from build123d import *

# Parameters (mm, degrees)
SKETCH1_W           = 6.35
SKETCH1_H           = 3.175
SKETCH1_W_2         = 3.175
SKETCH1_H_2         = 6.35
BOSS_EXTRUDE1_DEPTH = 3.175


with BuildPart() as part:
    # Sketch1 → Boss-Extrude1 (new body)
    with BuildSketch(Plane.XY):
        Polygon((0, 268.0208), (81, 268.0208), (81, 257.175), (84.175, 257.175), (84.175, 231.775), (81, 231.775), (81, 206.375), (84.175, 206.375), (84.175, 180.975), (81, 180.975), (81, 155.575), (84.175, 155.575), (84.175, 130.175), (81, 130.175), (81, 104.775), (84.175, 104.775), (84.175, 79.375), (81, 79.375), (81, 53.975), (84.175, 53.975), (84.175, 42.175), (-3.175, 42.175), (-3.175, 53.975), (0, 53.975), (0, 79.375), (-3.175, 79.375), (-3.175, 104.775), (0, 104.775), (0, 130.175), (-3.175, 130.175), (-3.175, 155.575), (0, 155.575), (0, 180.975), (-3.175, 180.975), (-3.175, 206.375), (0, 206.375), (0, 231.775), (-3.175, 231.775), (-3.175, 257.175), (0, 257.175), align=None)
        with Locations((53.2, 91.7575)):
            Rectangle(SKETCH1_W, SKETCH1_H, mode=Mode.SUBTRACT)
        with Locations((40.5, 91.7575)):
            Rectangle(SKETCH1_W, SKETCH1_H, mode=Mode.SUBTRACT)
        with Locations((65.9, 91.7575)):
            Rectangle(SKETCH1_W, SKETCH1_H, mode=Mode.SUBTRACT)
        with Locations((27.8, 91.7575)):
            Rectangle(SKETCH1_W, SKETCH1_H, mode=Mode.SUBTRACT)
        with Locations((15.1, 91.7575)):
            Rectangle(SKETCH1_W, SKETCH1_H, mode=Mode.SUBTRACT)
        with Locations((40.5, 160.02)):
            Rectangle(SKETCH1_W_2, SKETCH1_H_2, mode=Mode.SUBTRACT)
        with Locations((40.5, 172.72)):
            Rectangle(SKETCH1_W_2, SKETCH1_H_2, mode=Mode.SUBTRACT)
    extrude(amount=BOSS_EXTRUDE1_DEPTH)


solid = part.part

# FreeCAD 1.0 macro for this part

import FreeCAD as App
import Part
import Sketcher

V = App.Vector
Q = App.Units.Quantity

doc = App.newDocument("Part")
body = doc.addObject("PartDesign::Body", "Body")

# Sketch on XY plane
sketch1 = body.newObject("Sketcher::SketchObject", "Sketch")
sketch1.AttachmentSupport = (doc.getObject("XY_Plane"), [""])
sketch1.MapMode = "FlatFace"
sketch1.addGeometry(Part.LineSegment(V(81, 268, 0), V(0, 268, 0)), False)
sketch1.addGeometry(Part.LineSegment(V(0, 268, 0), V(0, 257.2, 0)), False)
sketch1.addGeometry(Part.LineSegment(V(0, 257.2, 0), V(-3.2, 257.2, 0)), False)
sketch1.addGeometry(Part.LineSegment(V(-3.2, 257.2, 0), V(-3.2, 231.8, 0)), False)
sketch1.addGeometry(Part.LineSegment(V(-3.2, 231.8, 0), V(0, 231.8, 0)), False)
sketch1.addGeometry(Part.LineSegment(V(0, 231.8, 0), V(0, 206.4, 0)), False)
sketch1.addGeometry(Part.LineSegment(V(0, 206.4, 0), V(-3.2, 206.4, 0)), False)
sketch1.addGeometry(Part.LineSegment(V(-3.2, 206.4, 0), V(-3.2, 181, 0)), False)
sketch1.addGeometry(Part.LineSegment(V(-3.2, 181, 0), V(0, 181, 0)), False)
sketch1.addGeometry(Part.LineSegment(V(0, 181, 0), V(0, 155.6, 0)), False)
sketch1.addGeometry(Part.LineSegment(V(0, 155.6, 0), V(-3.2, 155.6, 0)), False)
sketch1.addGeometry(Part.LineSegment(V(-3.2, 155.6, 0), V(-3.2, 130.2, 0)), False)
sketch1.addGeometry(Part.LineSegment(V(-3.2, 130.2, 0), V(0, 130.2, 0)), False)
sketch1.addGeometry(Part.LineSegment(V(0, 130.2, 0), V(0, 104.8, 0)), False)
sketch1.addGeometry(Part.LineSegment(V(0, 104.8, 0), V(-3.2, 104.8, 0)), False)
sketch1.addGeometry(Part.LineSegment(V(-3.2, 104.8, 0), V(-3.2, 79.4, 0)), False)
sketch1.addGeometry(Part.LineSegment(V(-3.2, 79.4, 0), V(0, 79.4, 0)), False)
sketch1.addGeometry(Part.LineSegment(V(0, 79.4, 0), V(0, 54, 0)), False)
sketch1.addGeometry(Part.LineSegment(V(0, 54, 0), V(-3.2, 54, 0)), False)
sketch1.addGeometry(Part.LineSegment(V(-3.2, 54, 0), V(-3.2, 42.2, 0)), False)
sketch1.addGeometry(Part.LineSegment(V(-3.2, 42.2, 0), V(84.2, 42.2, 0)), False)
sketch1.addGeometry(Part.LineSegment(V(84.2, 42.2, 0), V(84.2, 54, 0)), False)
sketch1.addGeometry(Part.LineSegment(V(84.2, 54, 0), V(81, 54, 0)), False)
sketch1.addGeometry(Part.LineSegment(V(81, 54, 0), V(81, 79.4, 0)), False)
sketch1.addGeometry(Part.LineSegment(V(81, 79.4, 0), V(84.2, 79.4, 0)), False)
sketch1.addGeometry(Part.LineSegment(V(84.2, 79.4, 0), V(84.2, 104.8, 0)), False)
sketch1.addGeometry(Part.LineSegment(V(84.2, 104.8, 0), V(81, 104.8, 0)), False)
sketch1.addGeometry(Part.LineSegment(V(81, 104.8, 0), V(81, 130.2, 0)), False)
sketch1.addGeometry(Part.LineSegment(V(81, 130.2, 0), V(84.2, 130.2, 0)), False)
sketch1.addGeometry(Part.LineSegment(V(84.2, 130.2, 0), V(84.2, 155.6, 0)), False)
sketch1.addGeometry(Part.LineSegment(V(84.2, 155.6, 0), V(81, 155.6, 0)), False)
sketch1.addGeometry(Part.LineSegment(V(81, 155.6, 0), V(81, 181, 0)), False)
sketch1.addGeometry(Part.LineSegment(V(81, 181, 0), V(84.2, 181, 0)), False)
sketch1.addGeometry(Part.LineSegment(V(84.2, 181, 0), V(84.2, 206.4, 0)), False)
sketch1.addGeometry(Part.LineSegment(V(84.2, 206.4, 0), V(81, 206.4, 0)), False)
sketch1.addGeometry(Part.LineSegment(V(81, 206.4, 0), V(81, 231.8, 0)), False)
sketch1.addGeometry(Part.LineSegment(V(81, 231.8, 0), V(84.2, 231.8, 0)), False)
sketch1.addGeometry(Part.LineSegment(V(84.2, 231.8, 0), V(84.2, 257.2, 0)), False)
sketch1.addGeometry(Part.LineSegment(V(84.2, 257.2, 0), V(81, 257.2, 0)), False)
sketch1.addGeometry(Part.LineSegment(V(81, 257.2, 0), V(81, 268, 0)), False)
sketch1.addGeometry(Part.LineSegment(V(62.7, 90.2, 0), V(62.7, 93.3, 0)), False)
sketch1.addGeometry(Part.LineSegment(V(62.7, 93.3, 0), V(69.1, 93.3, 0)), False)
sketch1.addGeometry(Part.LineSegment(V(69.1, 93.3, 0), V(69.1, 90.2, 0)), False)
sketch1.addGeometry(Part.LineSegment(V(69.1, 90.2, 0), V(62.7, 90.2, 0)), False)
sketch1.addGeometry(Part.LineSegment(V(50, 90.2, 0), V(50, 93.3, 0)), False)
sketch1.addGeometry(Part.LineSegment(V(50, 93.3, 0), V(56.4, 93.3, 0)), False)
sketch1.addGeometry(Part.LineSegment(V(56.4, 93.3, 0), V(56.4, 90.2, 0)), False)
sketch1.addGeometry(Part.LineSegment(V(56.4, 90.2, 0), V(50, 90.2, 0)), False)
sketch1.addGeometry(Part.LineSegment(V(37.3, 90.2, 0), V(37.3, 93.3, 0)), False)
sketch1.addGeometry(Part.LineSegment(V(37.3, 93.3, 0), V(43.7, 93.3, 0)), False)
sketch1.addGeometry(Part.LineSegment(V(43.7, 93.3, 0), V(43.7, 90.2, 0)), False)
sketch1.addGeometry(Part.LineSegment(V(43.7, 90.2, 0), V(37.3, 90.2, 0)), False)
sketch1.addGeometry(Part.LineSegment(V(24.6, 90.2, 0), V(24.6, 93.3, 0)), False)
sketch1.addGeometry(Part.LineSegment(V(24.6, 93.3, 0), V(31, 93.3, 0)), False)
sketch1.addGeometry(Part.LineSegment(V(31, 93.3, 0), V(31, 90.2, 0)), False)
sketch1.addGeometry(Part.LineSegment(V(31, 90.2, 0), V(24.6, 90.2, 0)), False)
sketch1.addGeometry(Part.LineSegment(V(11.9, 90.2, 0), V(11.9, 93.3, 0)), False)
sketch1.addGeometry(Part.LineSegment(V(11.9, 93.3, 0), V(18.3, 93.3, 0)), False)
sketch1.addGeometry(Part.LineSegment(V(18.3, 93.3, 0), V(18.3, 90.2, 0)), False)
sketch1.addGeometry(Part.LineSegment(V(18.3, 90.2, 0), V(11.9, 90.2, 0)), False)
sketch1.addGeometry(Part.LineSegment(V(38.9, 156.8, 0), V(38.9, 163.2, 0)), False)
sketch1.addGeometry(Part.LineSegment(V(38.9, 163.2, 0), V(42.1, 163.2, 0)), False)
sketch1.addGeometry(Part.LineSegment(V(42.1, 163.2, 0), V(42.1, 156.8, 0)), False)
sketch1.addGeometry(Part.LineSegment(V(42.1, 156.8, 0), V(38.9, 156.8, 0)), False)
sketch1.addGeometry(Part.LineSegment(V(38.9, 169.5, 0), V(38.9, 175.9, 0)), False)
sketch1.addGeometry(Part.LineSegment(V(38.9, 175.9, 0), V(42.1, 175.9, 0)), False)
sketch1.addGeometry(Part.LineSegment(V(42.1, 175.9, 0), V(42.1, 169.5, 0)), False)
sketch1.addGeometry(Part.LineSegment(V(42.1, 169.5, 0), V(38.9, 169.5, 0)), False)
sketch1.addConstraint(Sketcher.Constraint("Coincident", 0, 2, 1, 1))
sketch1.addConstraint(Sketcher.Constraint("Coincident", 1, 2, 2, 1))
sketch1.addConstraint(Sketcher.Constraint("Coincident", 2, 2, 3, 1))
sketch1.addConstraint(Sketcher.Constraint("Coincident", 3, 2, 4, 1))
sketch1.addConstraint(Sketcher.Constraint("Coincident", 4, 2, 5, 1))
sketch1.addConstraint(Sketcher.Constraint("Coincident", 5, 2, 6, 1))
sketch1.addConstraint(Sketcher.Constraint("Coincident", 6, 2, 7, 1))
sketch1.addConstraint(Sketcher.Constraint("Coincident", 7, 2, 8, 1))
sketch1.addConstraint(Sketcher.Constraint("Coincident", 8, 2, 9, 1))
sketch1.addConstraint(Sketcher.Constraint("Coincident", 9, 2, 10, 1))
sketch1.addConstraint(Sketcher.Constraint("Coincident", 10, 2, 11, 1))
sketch1.addConstraint(Sketcher.Constraint("Coincident", 11, 2, 12, 1))
sketch1.addConstraint(Sketcher.Constraint("Coincident", 12, 2, 13, 1))
sketch1.addConstraint(Sketcher.Constraint("Coincident", 13, 2, 14, 1))
sketch1.addConstraint(Sketcher.Constraint("Coincident", 14, 2, 15, 1))
sketch1.addConstraint(Sketcher.Constraint("Coincident", 15, 2, 16, 1))
sketch1.addConstraint(Sketcher.Constraint("Coincident", 16, 2, 17, 1))
sketch1.addConstraint(Sketcher.Constraint("Coincident", 17, 2, 18, 1))
sketch1.addConstraint(Sketcher.Constraint("Coincident", 18, 2, 19, 1))
sketch1.addConstraint(Sketcher.Constraint("Coincident", 19, 2, 20, 1))
sketch1.addConstraint(Sketcher.Constraint("Coincident", 20, 2, 21, 1))
sketch1.addConstraint(Sketcher.Constraint("Coincident", 21, 2, 22, 1))
sketch1.addConstraint(Sketcher.Constraint("Coincident", 22, 2, 23, 1))
sketch1.addConstraint(Sketcher.Constraint("Coincident", 23, 2, 24, 1))
sketch1.addConstraint(Sketcher.Constraint("Coincident", 24, 2, 25, 1))
sketch1.addConstraint(Sketcher.Constraint("Coincident", 25, 2, 26, 1))
sketch1.addConstraint(Sketcher.Constraint("Coincident", 26, 2, 27, 1))
sketch1.addConstraint(Sketcher.Constraint("Coincident", 27, 2, 28, 1))
sketch1.addConstraint(Sketcher.Constraint("Coincident", 28, 2, 29, 1))
sketch1.addConstraint(Sketcher.Constraint("Coincident", 29, 2, 30, 1))
sketch1.addConstraint(Sketcher.Constraint("Coincident", 30, 2, 31, 1))
sketch1.addConstraint(Sketcher.Constraint("Coincident", 31, 2, 32, 1))
sketch1.addConstraint(Sketcher.Constraint("Coincident", 32, 2, 33, 1))
sketch1.addConstraint(Sketcher.Constraint("Coincident", 33, 2, 34, 1))
sketch1.addConstraint(Sketcher.Constraint("Coincident", 34, 2, 35, 1))
sketch1.addConstraint(Sketcher.Constraint("Coincident", 35, 2, 36, 1))
sketch1.addConstraint(Sketcher.Constraint("Coincident", 36, 2, 37, 1))
sketch1.addConstraint(Sketcher.Constraint("Coincident", 37, 2, 38, 1))
sketch1.addConstraint(Sketcher.Constraint("Coincident", 38, 2, 39, 1))
sketch1.addConstraint(Sketcher.Constraint("Coincident", 39, 2, 0, 1))
sketch1.addConstraint(Sketcher.Constraint("Coincident", 40, 2, 41, 1))
sketch1.addConstraint(Sketcher.Constraint("Coincident", 41, 2, 42, 1))
sketch1.addConstraint(Sketcher.Constraint("Coincident", 42, 2, 43, 1))
sketch1.addConstraint(Sketcher.Constraint("Coincident", 43, 2, 40, 1))
sketch1.addConstraint(Sketcher.Constraint("Coincident", 44, 2, 45, 1))
sketch1.addConstraint(Sketcher.Constraint("Coincident", 45, 2, 46, 1))
sketch1.addConstraint(Sketcher.Constraint("Coincident", 46, 2, 47, 1))
sketch1.addConstraint(Sketcher.Constraint("Coincident", 47, 2, 44, 1))
sketch1.addConstraint(Sketcher.Constraint("Coincident", 48, 2, 49, 1))
sketch1.addConstraint(Sketcher.Constraint("Coincident", 49, 2, 50, 1))
sketch1.addConstraint(Sketcher.Constraint("Coincident", 50, 2, 51, 1))
sketch1.addConstraint(Sketcher.Constraint("Coincident", 51, 2, 48, 1))
sketch1.addConstraint(Sketcher.Constraint("Coincident", 52, 2, 53, 1))
sketch1.addConstraint(Sketcher.Constraint("Coincident", 53, 2, 54, 1))
sketch1.addConstraint(Sketcher.Constraint("Coincident", 54, 2, 55, 1))
sketch1.addConstraint(Sketcher.Constraint("Coincident", 55, 2, 52, 1))
sketch1.addConstraint(Sketcher.Constraint("Coincident", 56, 2, 57, 1))
sketch1.addConstraint(Sketcher.Constraint("Coincident", 57, 2, 58, 1))
sketch1.addConstraint(Sketcher.Constraint("Coincident", 58, 2, 59, 1))
sketch1.addConstraint(Sketcher.Constraint("Coincident", 59, 2, 56, 1))
sketch1.addConstraint(Sketcher.Constraint("Coincident", 60, 2, 61, 1))
sketch1.addConstraint(Sketcher.Constraint("Coincident", 61, 2, 62, 1))
sketch1.addConstraint(Sketcher.Constraint("Coincident", 62, 2, 63, 1))
sketch1.addConstraint(Sketcher.Constraint("Coincident", 63, 2, 60, 1))
sketch1.addConstraint(Sketcher.Constraint("Coincident", 64, 2, 65, 1))
sketch1.addConstraint(Sketcher.Constraint("Coincident", 65, 2, 66, 1))
sketch1.addConstraint(Sketcher.Constraint("Coincident", 66, 2, 67, 1))
sketch1.addConstraint(Sketcher.Constraint("Coincident", 67, 2, 64, 1))
sketch1.addConstraint(Sketcher.Constraint("Horizontal", 0))
sketch1.addConstraint(Sketcher.Constraint("Vertical", 1))
sketch1.addConstraint(Sketcher.Constraint("Horizontal", 2))
sketch1.addConstraint(Sketcher.Constraint("Vertical", 3))
sketch1.addConstraint(Sketcher.Constraint("Horizontal", 4))
sketch1.addConstraint(Sketcher.Constraint("Vertical", 5))
sketch1.addConstraint(Sketcher.Constraint("Horizontal", 6))
sketch1.addConstraint(Sketcher.Constraint("Vertical", 7))
sketch1.addConstraint(Sketcher.Constraint("Horizontal", 8))
sketch1.addConstraint(Sketcher.Constraint("Vertical", 9))
sketch1.addConstraint(Sketcher.Constraint("Horizontal", 10))
sketch1.addConstraint(Sketcher.Constraint("Vertical", 11))
sketch1.addConstraint(Sketcher.Constraint("Horizontal", 12))
sketch1.addConstraint(Sketcher.Constraint("Vertical", 13))
sketch1.addConstraint(Sketcher.Constraint("Horizontal", 14))
sketch1.addConstraint(Sketcher.Constraint("Vertical", 15))
sketch1.addConstraint(Sketcher.Constraint("Horizontal", 16))
sketch1.addConstraint(Sketcher.Constraint("Vertical", 17))
sketch1.addConstraint(Sketcher.Constraint("Horizontal", 18))
sketch1.addConstraint(Sketcher.Constraint("Vertical", 19))
sketch1.addConstraint(Sketcher.Constraint("Horizontal", 20))
sketch1.addConstraint(Sketcher.Constraint("Vertical", 21))
sketch1.addConstraint(Sketcher.Constraint("Horizontal", 22))
sketch1.addConstraint(Sketcher.Constraint("Vertical", 23))
sketch1.addConstraint(Sketcher.Constraint("Horizontal", 24))
sketch1.addConstraint(Sketcher.Constraint("Vertical", 25))
sketch1.addConstraint(Sketcher.Constraint("Horizontal", 26))
sketch1.addConstraint(Sketcher.Constraint("Vertical", 27))
sketch1.addConstraint(Sketcher.Constraint("Horizontal", 28))
sketch1.addConstraint(Sketcher.Constraint("Vertical", 29))
sketch1.addConstraint(Sketcher.Constraint("Horizontal", 30))
sketch1.addConstraint(Sketcher.Constraint("Vertical", 31))
sketch1.addConstraint(Sketcher.Constraint("Horizontal", 32))
sketch1.addConstraint(Sketcher.Constraint("Vertical", 33))
sketch1.addConstraint(Sketcher.Constraint("Horizontal", 34))
sketch1.addConstraint(Sketcher.Constraint("Vertical", 35))
sketch1.addConstraint(Sketcher.Constraint("Horizontal", 36))
sketch1.addConstraint(Sketcher.Constraint("Vertical", 37))
sketch1.addConstraint(Sketcher.Constraint("Horizontal", 38))
sketch1.addConstraint(Sketcher.Constraint("Vertical", 39))
sketch1.addConstraint(Sketcher.Constraint("Vertical", 40))
sketch1.addConstraint(Sketcher.Constraint("Horizontal", 41))
sketch1.addConstraint(Sketcher.Constraint("Vertical", 42))
sketch1.addConstraint(Sketcher.Constraint("Horizontal", 43))
sketch1.addConstraint(Sketcher.Constraint("Vertical", 44))
sketch1.addConstraint(Sketcher.Constraint("Horizontal", 45))
sketch1.addConstraint(Sketcher.Constraint("Vertical", 46))
sketch1.addConstraint(Sketcher.Constraint("Horizontal", 47))
sketch1.addConstraint(Sketcher.Constraint("Vertical", 48))
sketch1.addConstraint(Sketcher.Constraint("Horizontal", 49))
sketch1.addConstraint(Sketcher.Constraint("Vertical", 50))
sketch1.addConstraint(Sketcher.Constraint("Horizontal", 51))
sketch1.addConstraint(Sketcher.Constraint("Vertical", 52))
sketch1.addConstraint(Sketcher.Constraint("Horizontal", 53))
sketch1.addConstraint(Sketcher.Constraint("Vertical", 54))
sketch1.addConstraint(Sketcher.Constraint("Horizontal", 55))
sketch1.addConstraint(Sketcher.Constraint("Vertical", 56))
sketch1.addConstraint(Sketcher.Constraint("Horizontal", 57))
sketch1.addConstraint(Sketcher.Constraint("Vertical", 58))
sketch1.addConstraint(Sketcher.Constraint("Horizontal", 59))
sketch1.addConstraint(Sketcher.Constraint("Vertical", 60))
sketch1.addConstraint(Sketcher.Constraint("Horizontal", 61))
sketch1.addConstraint(Sketcher.Constraint("Vertical", 62))
sketch1.addConstraint(Sketcher.Constraint("Horizontal", 63))
sketch1.addConstraint(Sketcher.Constraint("Vertical", 64))
sketch1.addConstraint(Sketcher.Constraint("Horizontal", 65))
sketch1.addConstraint(Sketcher.Constraint("Vertical", 66))
sketch1.addConstraint(Sketcher.Constraint("Horizontal", 67))
sketch1.addConstraint(Sketcher.Constraint("PointOnObject", 0, 2, -2))
sketch1.addConstraint(Sketcher.Constraint("PointOnObject", 4, 2, -2))
sketch1.addConstraint(Sketcher.Constraint("PointOnObject", 8, 2, -2))
sketch1.addConstraint(Sketcher.Constraint("PointOnObject", 12, 2, -2))
sketch1.addConstraint(Sketcher.Constraint("PointOnObject", 16, 2, -2))
sketch1.addConstraint(Sketcher.Constraint("Horizontal", 18, 2, 21, 2))
sketch1.addConstraint(Sketcher.Constraint("Horizontal", 16, 2, 23, 2))
sketch1.addConstraint(Sketcher.Constraint("Horizontal", 14, 2, 25, 2))
sketch1.addConstraint(Sketcher.Constraint("Horizontal", 12, 2, 27, 2))
sketch1.addConstraint(Sketcher.Constraint("Horizontal", 10, 2, 29, 2))
sketch1.addConstraint(Sketcher.Constraint("Horizontal", 8, 2, 31, 2))
sketch1.addConstraint(Sketcher.Constraint("Horizontal", 6, 2, 33, 2))
sketch1.addConstraint(Sketcher.Constraint("Horizontal", 4, 2, 35, 2))
sketch1.addConstraint(Sketcher.Constraint("Horizontal", 2, 2, 37, 2))
sketch1.addConstraint(Sketcher.Constraint("Horizontal", 41, 2, 44, 2))
sketch1.addConstraint(Sketcher.Constraint("Horizontal", 43, 2, 46, 2))
sketch1.addConstraint(Sketcher.Constraint("Horizontal", 45, 2, 48, 2))
sketch1.addConstraint(Sketcher.Constraint("Horizontal", 47, 2, 50, 2))
sketch1.addConstraint(Sketcher.Constraint("Horizontal", 49, 2, 52, 2))
sketch1.addConstraint(Sketcher.Constraint("Horizontal", 51, 2, 54, 2))
sketch1.addConstraint(Sketcher.Constraint("Horizontal", 53, 2, 56, 2))
sketch1.addConstraint(Sketcher.Constraint("Horizontal", 55, 2, 58, 2))
sketch1.addConstraint(Sketcher.Constraint("Vertical", 3, 2, 6, 2))
sketch1.addConstraint(Sketcher.Constraint("Vertical", 7, 2, 10, 2))
sketch1.addConstraint(Sketcher.Constraint("Vertical", 11, 2, 14, 2))
sketch1.addConstraint(Sketcher.Constraint("Vertical", 15, 2, 18, 2))
sketch1.addConstraint(Sketcher.Constraint("Vertical", 21, 2, 24, 2))
sketch1.addConstraint(Sketcher.Constraint("Vertical", 23, 2, 26, 2))
sketch1.addConstraint(Sketcher.Constraint("Vertical", 25, 2, 28, 2))
sketch1.addConstraint(Sketcher.Constraint("Vertical", 27, 2, 30, 2))
sketch1.addConstraint(Sketcher.Constraint("Vertical", 29, 2, 32, 2))
sketch1.addConstraint(Sketcher.Constraint("Vertical", 31, 2, 34, 2))
sketch1.addConstraint(Sketcher.Constraint("Vertical", 33, 2, 36, 2))
sketch1.addConstraint(Sketcher.Constraint("Vertical", 35, 2, 38, 2))
sketch1.addConstraint(Sketcher.Constraint("Vertical", 63, 2, 64, 2))
sketch1.addConstraint(Sketcher.Constraint("Vertical", 62, 2, 65, 2))
sketch1.addConstraint(Sketcher.Constraint("Equal", 18, 22))
sketch1.addConstraint(Sketcher.Constraint("Equal", 43, 45))
sketch1.addConstraint(Sketcher.Constraint("Equal", 47, 49))
sketch1.addConstraint(Sketcher.Constraint("Equal", 51, 53))
sketch1.addConstraint(Sketcher.Constraint("Equal", 55, 57))
sketch1.addConstraint(Sketcher.Constraint("Equal", 38, 61))
sketch1.addConstraint(Sketcher.Constraint("Equal", 3, 5))
sketch1.addConstraint(Sketcher.Constraint("Equal", 5, 7))
sketch1.addConstraint(Sketcher.Constraint("Equal", 7, 9))
sketch1.addConstraint(Sketcher.Constraint("Equal", 9, 11))
sketch1.addConstraint(Sketcher.Constraint("Equal", 11, 13))
sketch1.addConstraint(Sketcher.Constraint("Equal", 13, 15))
sketch1.addConstraint(Sketcher.Constraint("Equal", 15, 17))
sketch1.addConstraint(Sketcher.Constraint("Equal", 67, 40))
sketch1.addConstraint(Sketcher.Constraint("Equal", 59, 60))
sketch1.addConstraint(Sketcher.Constraint("Equal", 62, 64))
sketch1.addConstraint(Sketcher.Constraint("DistanceY", 3, 2, 3, 1, Q("1 in")))
sketch1.addConstraint(Sketcher.Constraint("DistanceX", 41, 1, 41, 2, Q("0.25 in")))
sketch1.addConstraint(Sketcher.Constraint("DistanceX", 2, 2, 2, 1, Q("0.125 in")))
sketch1.addConstraint(Sketcher.Constraint("DistanceY", 1, 2, 1, 1, Q("0.427 in")))
sketch1.addConstraint(Sketcher.Constraint("DistanceY", -1, 1, 42, 2, Q("3.55 in")))
sketch1.addConstraint(Sketcher.Constraint("DistanceY", -1, 1, 0, 2, Q("10.552 in")))
sketch1.addConstraint(Sketcher.Constraint("DistanceY", -1, 1, 60, 2, Q("6.425 in")))
sketch1.addConstraint(Sketcher.Constraint("DistanceY", -1, 1, 64, 2, Q("6.925 in")))
sketch1.addConstraint(Sketcher.Constraint("DistanceX", 0, 2, 0, 1, 81.0))
sketch1.addConstraint(Sketcher.Constraint("DistanceY", 19, 2, 19, 1, 11.8))
sketch1.addConstraint(Sketcher.Constraint("DistanceX", -1, 1, 40, 2, 62.725))
sketch1.addConstraint(Sketcher.Constraint("DistanceX", -1, 1, 44, 2, 50.025))
sketch1.addConstraint(Sketcher.Constraint("DistanceX", -1, 1, 48, 2, 37.325))
sketch1.addConstraint(Sketcher.Constraint("DistanceX", -1, 1, 52, 2, 24.625))
sketch1.addConstraint(Sketcher.Constraint("DistanceX", -1, 1, 56, 2, 11.925))
sketch1.addConstraint(Sketcher.Constraint("DistanceX", -1, 1, 60, 2, 38.9125))
pad1 = body.newObject("PartDesign::Pad", "Pad")
pad1.Profile = sketch1
pad1.Length = Q("0.125 in")

doc.recompute()
